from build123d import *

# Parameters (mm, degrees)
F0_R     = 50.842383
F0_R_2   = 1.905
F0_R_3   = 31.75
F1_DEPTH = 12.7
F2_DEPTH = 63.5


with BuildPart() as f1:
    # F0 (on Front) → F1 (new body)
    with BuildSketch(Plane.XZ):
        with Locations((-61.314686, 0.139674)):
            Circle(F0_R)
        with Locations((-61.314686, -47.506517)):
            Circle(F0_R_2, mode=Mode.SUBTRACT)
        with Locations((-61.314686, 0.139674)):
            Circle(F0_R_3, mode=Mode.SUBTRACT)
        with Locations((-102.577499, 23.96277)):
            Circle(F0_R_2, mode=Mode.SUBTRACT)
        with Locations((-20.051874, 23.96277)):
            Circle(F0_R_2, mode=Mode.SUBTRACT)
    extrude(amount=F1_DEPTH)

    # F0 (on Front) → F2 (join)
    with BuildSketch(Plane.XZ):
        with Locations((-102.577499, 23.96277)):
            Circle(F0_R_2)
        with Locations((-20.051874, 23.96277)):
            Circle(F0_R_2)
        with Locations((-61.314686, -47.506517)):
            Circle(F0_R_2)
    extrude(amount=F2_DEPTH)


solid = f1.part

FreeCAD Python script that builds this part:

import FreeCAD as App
import Part
import Sketcher
from FreeCAD import Vector
Q = App.Units.Quantity

doc = App.newDocument("Part")
body = doc.addObject("PartDesign::Body", "Body")

# Sketch on XZ plane
sketch1 = body.newObject("Sketcher::SketchObject", "Sketch")
sketch1.AttachmentSupport = (doc.getObject("XZ_Plane"), [""])
sketch1.MapMode = "FlatFace"
sketch1.addGeometry([
    Part.Circle(Vector(-61.3, 0.1, 0), Vector(0, 0, 1), 50.8),  # 0
    Part.Circle(Vector(-61.3, -47.5, 0), Vector(0, 0, 1), 1.9),  # 1
    Part.Circle(Vector(-102.6, 24, 0), Vector(0, 0, 1), 1.9),  # 2
    Part.Circle(Vector(-61.3, 0.1, 0), Vector(0, 0, 1), 31.8),  # 3
    Part.Circle(Vector(-20.1, 24, 0), Vector(0, 0, 1), 1.9),  # 4
], False)
sketch1.addConstraint([
    Sketcher.Constraint("Coincident", 3, 3, 0, 3),
    Sketcher.Constraint("Equal", 1, 2),
    Sketcher.Constraint("Equal", 2, 4),
    Sketcher.Constraint("Horizontal", 2, 3, 4, 3),
    Sketcher.Constraint("Vertical", 0, 3, 1, 3),
    Sketcher.Constraint("Diameter", 3, Q("2.5 in")),
    Sketcher.Constraint("Diameter", 1, Q("0.15 in")),
    Sketcher.Constraint("Diameter", 0, Q("101.684766 mm")),
    Sketcher.Constraint("DistanceX", 2, 3, -1, 1, Q("102.577499 mm")),
    Sketcher.Constraint("DistanceY", -1, 1, 2, 3, Q("23.96277 mm")),
    Sketcher.Constraint("DistanceY", 1, 3, 0, 3, Q("47.646191 mm")),
    Sketcher.Constraint("DistanceX", 0, 3, 4, 3, Q("41.262812 mm")),
    Sketcher.Constraint("DistanceX", 0, 3, -1, 1, Q("61.314686 mm")),
    Sketcher.Constraint("DistanceY", -1, 1, 0, 3, Q("0.139674 mm")),
])
pad1 = body.newObject("PartDesign::Pad", "Pad")
pad1.Profile = sketch1
pad1.Length = Q("0.5 in")

# Sketch on XZ plane
sketch2 = body.newObject("Sketcher::SketchObject", "Sketch001")
sketch2.AttachmentSupport = (doc.getObject("XZ_Plane"), [""])
sketch2.MapMode = "FlatFace"
sketch2.addGeometry([
    Part.Circle(Vector(-102.6, 24, 0), Vector(0, 0, 1), 1.9),
    Part.Circle(Vector(-20.1, 24, 0), Vector(0, 0, 1), 1.9),
    Part.Circle(Vector(-61.3, -47.5, 0), Vector(0, 0, 1), 1.9),
], False)
sketch2.addConstraint([
    Sketcher.Constraint("Equal", 0, 1),
    Sketcher.Constraint("Equal", 1, 2),
    Sketcher.Constraint("Horizontal", 0, 3, 1, 3),
    Sketcher.Constraint("Diameter", 0, Q("0.15 in")),
    Sketcher.Constraint("DistanceX", 0, 3, -1, 1, Q("102.577499 mm")),
    Sketcher.Constraint("DistanceY", -1, 1, 0, 3, Q("23.96277 mm")),
    Sketcher.Constraint("DistanceX", 2, 3, 1, 3, Q("41.262812 mm")),
    Sketcher.Constraint("DistanceX", 1, 3, -1, 1, Q("20.051874 mm")),
    Sketcher.Constraint("DistanceY", 2, 3, -1, 1, Q("47.506517 mm")),
])
pad2 = body.newObject("PartDesign::Pad", "Pad001")
pad2.Profile = sketch2
pad2.Length = Q("2.5 in")

doc.recompute()
